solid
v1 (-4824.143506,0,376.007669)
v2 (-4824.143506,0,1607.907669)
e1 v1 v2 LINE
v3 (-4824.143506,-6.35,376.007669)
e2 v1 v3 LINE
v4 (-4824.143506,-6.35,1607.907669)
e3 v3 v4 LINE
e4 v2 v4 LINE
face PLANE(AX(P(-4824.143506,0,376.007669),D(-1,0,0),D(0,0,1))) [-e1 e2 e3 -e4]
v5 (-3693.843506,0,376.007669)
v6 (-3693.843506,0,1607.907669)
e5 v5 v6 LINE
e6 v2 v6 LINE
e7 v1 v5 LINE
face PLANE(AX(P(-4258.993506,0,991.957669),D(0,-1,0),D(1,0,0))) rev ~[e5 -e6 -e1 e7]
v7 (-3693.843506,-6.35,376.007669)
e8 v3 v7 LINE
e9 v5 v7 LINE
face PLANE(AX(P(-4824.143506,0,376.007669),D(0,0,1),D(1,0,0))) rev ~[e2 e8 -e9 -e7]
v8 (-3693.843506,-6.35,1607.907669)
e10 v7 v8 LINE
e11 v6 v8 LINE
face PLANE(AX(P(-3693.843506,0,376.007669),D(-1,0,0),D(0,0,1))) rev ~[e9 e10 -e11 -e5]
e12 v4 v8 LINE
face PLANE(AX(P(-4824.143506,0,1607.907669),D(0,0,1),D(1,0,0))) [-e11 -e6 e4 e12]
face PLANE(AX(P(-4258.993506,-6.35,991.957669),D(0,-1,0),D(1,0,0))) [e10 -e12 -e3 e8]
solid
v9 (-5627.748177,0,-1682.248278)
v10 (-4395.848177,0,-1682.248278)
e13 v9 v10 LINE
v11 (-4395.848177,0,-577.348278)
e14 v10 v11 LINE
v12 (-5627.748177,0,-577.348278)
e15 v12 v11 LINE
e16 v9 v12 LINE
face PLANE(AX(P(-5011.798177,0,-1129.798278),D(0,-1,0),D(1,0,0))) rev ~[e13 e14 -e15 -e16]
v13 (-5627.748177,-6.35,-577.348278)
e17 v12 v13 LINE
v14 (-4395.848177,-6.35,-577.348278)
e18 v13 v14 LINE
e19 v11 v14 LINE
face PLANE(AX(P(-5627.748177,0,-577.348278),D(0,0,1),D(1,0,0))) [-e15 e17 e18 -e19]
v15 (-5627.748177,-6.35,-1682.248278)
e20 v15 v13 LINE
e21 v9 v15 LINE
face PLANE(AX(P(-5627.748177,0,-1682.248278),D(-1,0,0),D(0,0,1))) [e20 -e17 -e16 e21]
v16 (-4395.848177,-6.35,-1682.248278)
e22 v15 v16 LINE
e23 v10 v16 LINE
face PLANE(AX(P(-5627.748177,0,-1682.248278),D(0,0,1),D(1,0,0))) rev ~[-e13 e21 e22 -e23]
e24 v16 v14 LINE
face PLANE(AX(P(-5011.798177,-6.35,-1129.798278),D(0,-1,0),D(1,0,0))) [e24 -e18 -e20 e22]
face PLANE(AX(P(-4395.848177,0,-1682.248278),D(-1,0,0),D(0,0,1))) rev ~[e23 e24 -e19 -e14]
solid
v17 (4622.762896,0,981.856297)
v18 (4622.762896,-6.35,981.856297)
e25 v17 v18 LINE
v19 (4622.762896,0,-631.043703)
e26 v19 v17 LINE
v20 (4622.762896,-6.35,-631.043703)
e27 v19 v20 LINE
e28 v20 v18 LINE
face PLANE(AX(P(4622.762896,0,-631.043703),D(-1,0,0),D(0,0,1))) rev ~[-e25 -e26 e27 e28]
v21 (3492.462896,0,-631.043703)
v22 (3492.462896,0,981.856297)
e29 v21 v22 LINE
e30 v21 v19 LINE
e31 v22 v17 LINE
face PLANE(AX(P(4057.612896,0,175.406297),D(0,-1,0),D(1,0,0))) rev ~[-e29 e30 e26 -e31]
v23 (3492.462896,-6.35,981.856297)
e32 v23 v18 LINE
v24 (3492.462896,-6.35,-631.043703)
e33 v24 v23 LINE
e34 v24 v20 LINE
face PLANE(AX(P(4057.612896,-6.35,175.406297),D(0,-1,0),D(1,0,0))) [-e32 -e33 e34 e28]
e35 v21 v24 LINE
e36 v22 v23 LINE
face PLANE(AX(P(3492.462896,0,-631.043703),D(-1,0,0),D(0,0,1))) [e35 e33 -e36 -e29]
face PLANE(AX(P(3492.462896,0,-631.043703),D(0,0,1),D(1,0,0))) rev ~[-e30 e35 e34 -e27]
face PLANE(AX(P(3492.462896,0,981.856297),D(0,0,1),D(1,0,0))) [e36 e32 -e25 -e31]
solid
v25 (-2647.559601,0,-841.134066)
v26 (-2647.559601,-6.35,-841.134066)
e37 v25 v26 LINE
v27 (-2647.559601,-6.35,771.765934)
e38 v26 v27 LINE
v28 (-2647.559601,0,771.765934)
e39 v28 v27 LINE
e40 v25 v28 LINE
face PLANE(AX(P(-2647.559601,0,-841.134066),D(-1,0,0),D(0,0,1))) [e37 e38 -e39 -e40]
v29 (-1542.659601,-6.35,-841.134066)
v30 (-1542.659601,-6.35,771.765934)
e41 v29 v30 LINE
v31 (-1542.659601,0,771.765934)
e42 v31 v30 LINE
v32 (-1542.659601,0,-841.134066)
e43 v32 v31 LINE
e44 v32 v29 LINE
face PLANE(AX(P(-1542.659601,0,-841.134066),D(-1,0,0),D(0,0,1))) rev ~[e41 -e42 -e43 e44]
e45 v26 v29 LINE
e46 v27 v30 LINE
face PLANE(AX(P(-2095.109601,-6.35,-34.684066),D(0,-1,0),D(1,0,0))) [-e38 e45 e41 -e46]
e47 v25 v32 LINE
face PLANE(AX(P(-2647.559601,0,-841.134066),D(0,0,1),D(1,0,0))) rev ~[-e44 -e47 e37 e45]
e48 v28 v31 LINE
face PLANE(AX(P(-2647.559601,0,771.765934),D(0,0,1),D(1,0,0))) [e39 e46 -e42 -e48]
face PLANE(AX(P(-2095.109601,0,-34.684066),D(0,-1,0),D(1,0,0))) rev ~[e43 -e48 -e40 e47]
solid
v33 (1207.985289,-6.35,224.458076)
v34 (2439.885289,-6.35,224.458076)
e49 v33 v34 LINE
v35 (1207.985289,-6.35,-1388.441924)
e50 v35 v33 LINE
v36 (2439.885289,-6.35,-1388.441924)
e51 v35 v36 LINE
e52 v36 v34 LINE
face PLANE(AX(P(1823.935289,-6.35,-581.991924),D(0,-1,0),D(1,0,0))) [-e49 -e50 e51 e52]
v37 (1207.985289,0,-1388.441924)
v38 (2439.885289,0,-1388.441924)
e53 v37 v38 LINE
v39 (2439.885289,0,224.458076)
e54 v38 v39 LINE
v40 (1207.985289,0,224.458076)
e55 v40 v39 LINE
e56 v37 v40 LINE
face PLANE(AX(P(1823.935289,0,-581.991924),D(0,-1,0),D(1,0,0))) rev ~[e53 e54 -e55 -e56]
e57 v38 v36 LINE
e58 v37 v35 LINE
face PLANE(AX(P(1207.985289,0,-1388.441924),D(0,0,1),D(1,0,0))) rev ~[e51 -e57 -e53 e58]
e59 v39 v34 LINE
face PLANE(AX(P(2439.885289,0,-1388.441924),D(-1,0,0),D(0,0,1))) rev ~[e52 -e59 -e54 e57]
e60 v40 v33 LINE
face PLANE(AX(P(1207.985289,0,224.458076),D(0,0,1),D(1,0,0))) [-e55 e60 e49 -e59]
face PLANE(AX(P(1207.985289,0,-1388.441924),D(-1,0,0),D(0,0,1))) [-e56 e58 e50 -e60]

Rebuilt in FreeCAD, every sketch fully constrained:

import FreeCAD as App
import Part
import Sketcher
from FreeCAD import Vector
Q = App.Units.Quantity

doc = App.newDocument("Part")
body = doc.addObject("PartDesign::Body", "Body")

sketch1 = body.newObject("Sketcher::SketchObject", "Sketch")
sketch1.AttachmentSupport = (doc.getObject("XZ_Plane"), [""])
sketch1.MapMode = "FlatFace"
sketch1.addGeometry(Part.LineSegment(Vector(-599.706953, 1905.949916, 0), Vector(-599.706953, -532.450084, 0)), False)
sketch1.addGeometry(Part.LineSegment(Vector(-599.706953, -532.450084, 0), Vector(619.493047, -532.450084, 0)), False)
sketch1.addGeometry(Part.LineSegment(Vector(619.493047, -532.450084, 0), Vector(619.493047, 1905.949916, 0)), False)
sketch1.addGeometry(Part.LineSegment(Vector(619.493047, 1905.949916, 0), Vector(-599.706953, 1905.949916, 0)), False)
sketch1.addConstraint(Sketcher.Constraint("Coincident", 0, 2, 1, 1))
sketch1.addConstraint(Sketcher.Constraint("Coincident", 1, 2, 2, 1))
sketch1.addConstraint(Sketcher.Constraint("Coincident", 2, 2, 3, 1))
sketch1.addConstraint(Sketcher.Constraint("Coincident", 3, 2, 0, 1))
sketch1.addConstraint(Sketcher.Constraint("Vertical", 0))
sketch1.addConstraint(Sketcher.Constraint("Horizontal", 1))
sketch1.addConstraint(Sketcher.Constraint("Vertical", 2))
sketch1.addConstraint(Sketcher.Constraint("Horizontal", 3))
sketch1.addConstraint(Sketcher.Constraint("DistanceX", 1, 1, 1, 2, Q("48 in")))
sketch1.addConstraint(Sketcher.Constraint("DistanceY", 0, 2, 0, 1, Q("96 in")))
sketch1.addConstraint(Sketcher.Constraint("DistanceX", 0, 2, -1, 1, 599.706953))
sketch1.addConstraint(Sketcher.Constraint("DistanceY", 0, 2, -1, 1, 532.450084))
pad1 = body.newObject("PartDesign::Pad", "Pad")
pad1.Profile = sketch1
pad1.Length = Q("0.25 in")
body2 = doc.addObject("PartDesign::Body", "Body001")

sketch2 = body2.newObject("Sketcher::SketchObject", "Sketch001")
sketch2.AttachmentSupport = (doc.getObject("XZ_Plane001"), [""])
sketch2.MapMode = "FlatFace"
sketch2.addGeometry(Part.LineSegment(Vector(-2647.559601, 771.765934, 0), Vector(-2647.559601, -841.134066, 0)), False)
sketch2.addGeometry(Part.LineSegment(Vector(-2647.559601, -841.134066, 0), Vector(-1542.659601, -841.134066, 0)), False)
sketch2.addGeometry(Part.LineSegment(Vector(-1542.659601, -841.134066, 0), Vector(-1542.659601, 771.765934, 0)), False)
sketch2.addGeometry(Part.LineSegment(Vector(-1542.659601, 771.765934, 0), Vector(-2647.559601, 771.765934, 0)), False)
sketch2.addConstraint(Sketcher.Constraint("Coincident", 0, 2, 1, 1))
sketch2.addConstraint(Sketcher.Constraint("Coincident", 1, 2, 2, 1))
sketch2.addConstraint(Sketcher.Constraint("Coincident", 2, 2, 3, 1))
sketch2.addConstraint(Sketcher.Constraint("Coincident", 3, 2, 0, 1))
sketch2.addConstraint(Sketcher.Constraint("Vertical", 0))
sketch2.addConstraint(Sketcher.Constraint("Horizontal", 1))
sketch2.addConstraint(Sketcher.Constraint("Vertical", 2))
sketch2.addConstraint(Sketcher.Constraint("Horizontal", 3))
sketch2.addConstraint(Sketcher.Constraint("DistanceX", 1, 1, 1, 2, Q("43.5 in")))
sketch2.addConstraint(Sketcher.Constraint("DistanceY", 0, 2, 0, 1, Q("63.5 in")))
sketch2.addConstraint(Sketcher.Constraint("DistanceX", 0, 2, -1, 1, 2647.559601))
sketch2.addConstraint(Sketcher.Constraint("DistanceY", 0, 2, -1, 1, 841.134066))
pad2 = body2.newObject("PartDesign::Pad", "Pad001")
pad2.Profile = sketch2
pad2.Length = Q("0.25 in")
body3 = doc.addObject("PartDesign::Body", "Body002")

sketch3 = body3.newObject("Sketcher::SketchObject", "Sketch002")
sketch3.AttachmentSupport = (doc.getObject("XZ_Plane002"), [""])
sketch3.MapMode = "FlatFace"
sketch3.addGeometry(Part.LineSegment(Vector(1207.985289, 224.458076, 0), Vector(1207.985289, -1388.441924, 0)), False)
sketch3.addGeometry(Part.LineSegment(Vector(1207.985289, -1388.441924, 0), Vector(2439.885289, -1388.441924, 0)), False)
sketch3.addGeometry(Part.LineSegment(Vector(2439.885289, -1388.441924, 0), Vector(2439.885289, 224.458076, 0)), False)
sketch3.addGeometry(Part.LineSegment(Vector(2439.885289, 224.458076, 0), Vector(1207.985289, 224.458076, 0)), False)
sketch3.addConstraint(Sketcher.Constraint("Coincident", 0, 2, 1, 1))
sketch3.addConstraint(Sketcher.Constraint("Coincident", 1, 2, 2, 1))
sketch3.addConstraint(Sketcher.Constraint("Coincident", 2, 2, 3, 1))
sketch3.addConstraint(Sketcher.Constraint("Coincident", 3, 2, 0, 1))
sketch3.addConstraint(Sketcher.Constraint("Vertical", 0))
sketch3.addConstraint(Sketcher.Constraint("Horizontal", 1))
sketch3.addConstraint(Sketcher.Constraint("Vertical", 2))
sketch3.addConstraint(Sketcher.Constraint("Horizontal", 3))
sketch3.addConstraint(Sketcher.Constraint("DistanceX", 1, 1, 1, 2, Q("48.5 in")))
sketch3.addConstraint(Sketcher.Constraint("DistanceY", 0, 2, 0, 1, Q("63.5 in")))
sketch3.addConstraint(Sketcher.Constraint("DistanceX", -1, 1, 0, 2, 1207.985289))
sketch3.addConstraint(Sketcher.Constraint("DistanceY", 0, 2, -1, 1, 1388.441924))
pad3 = body3.newObject("PartDesign::Pad", "Pad002")
pad3.Profile = sketch3
pad3.Length = Q("0.25 in")
body4 = doc.addObject("PartDesign::Body", "Body003")

sketch4 = body4.newObject("Sketcher::SketchObject", "Sketch003")
sketch4.AttachmentSupport = (doc.getObject("XZ_Plane003"), [""])
sketch4.MapMode = "FlatFace"
sketch4.addGeometry(Part.LineSegment(Vector(-5627.748177, -577.348278, 0), Vector(-5627.748177, -1682.248278, 0)), False)
sketch4.addGeometry(Part.LineSegment(Vector(-5627.748177, -1682.248278, 0), Vector(-4395.848177, -1682.248278, 0)), False)
sketch4.addGeometry(Part.LineSegment(Vector(-4395.848177, -1682.248278, 0), Vector(-4395.848177, -577.348278, 0)), False)
sketch4.addGeometry(Part.LineSegment(Vector(-4395.848177, -577.348278, 0), Vector(-5627.748177, -577.348278, 0)), False)
sketch4.addConstraint(Sketcher.Constraint("Coincident", 0, 2, 1, 1))
sketch4.addConstraint(Sketcher.Constraint("Coincident", 1, 2, 2, 1))
sketch4.addConstraint(Sketcher.Constraint("Coincident", 2, 2, 3, 1))
sketch4.addConstraint(Sketcher.Constraint("Coincident", 3, 2, 0, 1))
sketch4.addConstraint(Sketcher.Constraint("Vertical", 0))
sketch4.addConstraint(Sketcher.Constraint("Horizontal", 1))
sketch4.addConstraint(Sketcher.Constraint("Vertical", 2))
sketch4.addConstraint(Sketcher.Constraint("Horizontal", 3))
sketch4.addConstraint(Sketcher.Constraint("DistanceX", 1, 1, 1, 2, Q("48.5 in")))
sketch4.addConstraint(Sketcher.Constraint("DistanceY", 0, 2, 0, 1, Q("43.5 in")))
sketch4.addConstraint(Sketcher.Constraint("DistanceY", 0, 2, -1, 1, 1682.248278))
sketch4.addConstraint(Sketcher.Constraint("DistanceX", 0, 2, -1, 1, 5627.748177))
pad4 = body4.newObject("PartDesign::Pad", "Pad003")
pad4.Profile = sketch4
pad4.Length = Q("0.25 in")
body5 = doc.addObject("PartDesign::Body", "Body004")

sketch5 = body5.newObject("Sketcher::SketchObject", "Sketch004")
sketch5.AttachmentSupport = (doc.getObject("XZ_Plane004"), [""])
sketch5.MapMode = "FlatFace"
sketch5.addGeometry(Part.LineSegment(Vector(-4824.143506, 1607.907669, 0), Vector(-4824.143506, 376.007669, 0)), False)
sketch5.addGeometry(Part.LineSegment(Vector(-4824.143506, 376.007669, 0), Vector(-3693.843506, 376.007669, 0)), False)
sketch5.addGeometry(Part.LineSegment(Vector(-3693.843506, 376.007669, 0), Vector(-3693.843506, 1607.907669, 0)), False)
sketch5.addGeometry(Part.LineSegment(Vector(-3693.843506, 1607.907669, 0), Vector(-4824.143506, 1607.907669, 0)), False)
sketch5.addConstraint(Sketcher.Constraint("Coincident", 0, 2, 1, 1))
sketch5.addConstraint(Sketcher.Constraint("Coincident", 1, 2, 2, 1))
sketch5.addConstraint(Sketcher.Constraint("Coincident", 2, 2, 3, 1))
sketch5.addConstraint(Sketcher.Constraint("Coincident", 3, 2, 0, 1))
sketch5.addConstraint(Sketcher.Constraint("Vertical", 0))
sketch5.addConstraint(Sketcher.Constraint("Horizontal", 1))
sketch5.addConstraint(Sketcher.Constraint("Vertical", 2))
sketch5.addConstraint(Sketcher.Constraint("Horizontal", 3))
sketch5.addConstraint(Sketcher.Constraint("DistanceX", 1, 1, 1, 2, Q("44.5 in")))
sketch5.addConstraint(Sketcher.Constraint("DistanceY", 0, 2, 0, 1, Q("48.5 in")))
sketch5.addConstraint(Sketcher.Constraint("DistanceY", -1, 1, 0, 2, 376.007669))
sketch5.addConstraint(Sketcher.Constraint("DistanceX", 0, 2, -1, 1, 4824.143506))
pad5 = body5.newObject("PartDesign::Pad", "Pad004")
pad5.Profile = sketch5
pad5.Length = Q("0.25 in")
body6 = doc.addObject("PartDesign::Body", "Body005")

sketch6 = body6.newObject("Sketcher::SketchObject", "Sketch005")
sketch6.AttachmentSupport = (doc.getObject("XZ_Plane005"), [""])
sketch6.MapMode = "FlatFace"
sketch6.addGeometry(Part.LineSegment(Vector(3492.462896, 981.856297, 0), Vector(3492.462896, -631.043703, 0)), False)
sketch6.addGeometry(Part.LineSegment(Vector(3492.462896, -631.043703, 0), Vector(4622.762896, -631.043703, 0)), False)
sketch6.addGeometry(Part.LineSegment(Vector(4622.762896, -631.043703, 0), Vector(4622.762896, 981.856297, 0)), False)
sketch6.addGeometry(Part.LineSegment(Vector(4622.762896, 981.856297, 0), Vector(3492.462896, 981.856297, 0)), False)
sketch6.addConstraint(Sketcher.Constraint("Coincident", 0, 2, 1, 1))
sketch6.addConstraint(Sketcher.Constraint("Coincident", 1, 2, 2, 1))
sketch6.addConstraint(Sketcher.Constraint("Coincident", 2, 2, 3, 1))
sketch6.addConstraint(Sketcher.Constraint("Coincident", 3, 2, 0, 1))
sketch6.addConstraint(Sketcher.Constraint("Vertical", 0))
sketch6.addConstraint(Sketcher.Constraint("Horizontal", 1))
sketch6.addConstraint(Sketcher.Constraint("Vertical", 2))
sketch6.addConstraint(Sketcher.Constraint("Horizontal", 3))
sketch6.addConstraint(Sketcher.Constraint("DistanceX", 1, 1, 1, 2, Q("44.5 in")))
sketch6.addConstraint(Sketcher.Constraint("DistanceY", 0, 2, 0, 1, Q("63.5 in")))
sketch6.addConstraint(Sketcher.Constraint("DistanceX", -1, 1, 0, 2, 3492.462896))
sketch6.addConstraint(Sketcher.Constraint("DistanceY", 0, 2, -1, 1, 631.043703))
pad6 = body6.newObject("PartDesign::Pad", "Pad005")
pad6.Profile = sketch6
pad6.Length = Q("0.25 in")
body.Visibility = False

doc.recompute()
